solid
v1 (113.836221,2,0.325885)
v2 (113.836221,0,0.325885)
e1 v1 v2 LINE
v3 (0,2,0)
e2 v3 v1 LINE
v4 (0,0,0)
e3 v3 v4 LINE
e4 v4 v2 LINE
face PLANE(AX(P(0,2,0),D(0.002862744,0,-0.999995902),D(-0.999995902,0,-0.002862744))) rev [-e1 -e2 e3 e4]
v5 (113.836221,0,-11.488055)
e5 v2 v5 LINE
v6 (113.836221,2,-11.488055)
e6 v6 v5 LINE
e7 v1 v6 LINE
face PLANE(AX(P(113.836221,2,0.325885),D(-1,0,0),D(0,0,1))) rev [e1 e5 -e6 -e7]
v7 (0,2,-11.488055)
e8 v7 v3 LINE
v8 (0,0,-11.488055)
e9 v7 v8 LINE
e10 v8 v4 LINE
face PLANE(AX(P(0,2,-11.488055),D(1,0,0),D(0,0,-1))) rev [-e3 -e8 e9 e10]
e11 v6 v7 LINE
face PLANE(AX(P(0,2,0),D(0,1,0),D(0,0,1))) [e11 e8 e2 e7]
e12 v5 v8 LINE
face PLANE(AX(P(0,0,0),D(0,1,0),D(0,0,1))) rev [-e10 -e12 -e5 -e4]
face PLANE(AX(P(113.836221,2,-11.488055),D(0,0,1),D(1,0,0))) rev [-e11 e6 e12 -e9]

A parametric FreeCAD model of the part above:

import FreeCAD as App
import Part
import Sketcher
Q = App.Units.Quantity


def add_polygon(sketch, points):
    """Adds a closed chain of lines whose ends are joined by coincident constraints."""
    first, n = sketch.GeometryCount, len(points)
    for a, b in zip(points, points[1:] + points[:1]):
        sketch.addGeometry(Part.LineSegment(App.Vector(*a, 0), App.Vector(*b, 0)), False)
    for i in range(n):
        sketch.addConstraint(Sketcher.Constraint("Coincident", first + i, 2, first + (i + 1) % n, 1))

doc = App.newDocument("Part")
body = doc.addObject("PartDesign::Body", "Body")

# Sketch on XZ plane
sketch1 = body.newObject("Sketcher::SketchObject", "Sketch")
sketch1.AttachmentSupport = (doc.getObject("XZ_Plane"), [""])
sketch1.MapMode = "FlatFace"
add_polygon(sketch1, [(113.836221, 0.325885), (113.836221, -11.488055), (0, -11.488055), (0, 0)])  # lines 0-3
sketch1.addConstraint([
    Sketcher.Constraint("Vertical", 0),
    Sketcher.Constraint("Horizontal", 1),
    Sketcher.Constraint("Vertical", 2),
    Sketcher.Constraint("Coincident", 2, 2, -1, 1),
    Sketcher.Constraint("DistanceX", 1, 2, 1, 1, Q("113.836221 mm")),
    Sketcher.Constraint("DistanceY", 0, 2, 0, 1, Q("11.81394 mm")),
    Sketcher.Constraint("DistanceY", 2, 1, 2, 2, Q("11.488055 mm")),
])
pad1 = body.newObject("PartDesign::Pad", "Pad")
pad1.Profile = sketch1
pad1.Length = 2
pad1.Reversed = True

doc.recompute()
